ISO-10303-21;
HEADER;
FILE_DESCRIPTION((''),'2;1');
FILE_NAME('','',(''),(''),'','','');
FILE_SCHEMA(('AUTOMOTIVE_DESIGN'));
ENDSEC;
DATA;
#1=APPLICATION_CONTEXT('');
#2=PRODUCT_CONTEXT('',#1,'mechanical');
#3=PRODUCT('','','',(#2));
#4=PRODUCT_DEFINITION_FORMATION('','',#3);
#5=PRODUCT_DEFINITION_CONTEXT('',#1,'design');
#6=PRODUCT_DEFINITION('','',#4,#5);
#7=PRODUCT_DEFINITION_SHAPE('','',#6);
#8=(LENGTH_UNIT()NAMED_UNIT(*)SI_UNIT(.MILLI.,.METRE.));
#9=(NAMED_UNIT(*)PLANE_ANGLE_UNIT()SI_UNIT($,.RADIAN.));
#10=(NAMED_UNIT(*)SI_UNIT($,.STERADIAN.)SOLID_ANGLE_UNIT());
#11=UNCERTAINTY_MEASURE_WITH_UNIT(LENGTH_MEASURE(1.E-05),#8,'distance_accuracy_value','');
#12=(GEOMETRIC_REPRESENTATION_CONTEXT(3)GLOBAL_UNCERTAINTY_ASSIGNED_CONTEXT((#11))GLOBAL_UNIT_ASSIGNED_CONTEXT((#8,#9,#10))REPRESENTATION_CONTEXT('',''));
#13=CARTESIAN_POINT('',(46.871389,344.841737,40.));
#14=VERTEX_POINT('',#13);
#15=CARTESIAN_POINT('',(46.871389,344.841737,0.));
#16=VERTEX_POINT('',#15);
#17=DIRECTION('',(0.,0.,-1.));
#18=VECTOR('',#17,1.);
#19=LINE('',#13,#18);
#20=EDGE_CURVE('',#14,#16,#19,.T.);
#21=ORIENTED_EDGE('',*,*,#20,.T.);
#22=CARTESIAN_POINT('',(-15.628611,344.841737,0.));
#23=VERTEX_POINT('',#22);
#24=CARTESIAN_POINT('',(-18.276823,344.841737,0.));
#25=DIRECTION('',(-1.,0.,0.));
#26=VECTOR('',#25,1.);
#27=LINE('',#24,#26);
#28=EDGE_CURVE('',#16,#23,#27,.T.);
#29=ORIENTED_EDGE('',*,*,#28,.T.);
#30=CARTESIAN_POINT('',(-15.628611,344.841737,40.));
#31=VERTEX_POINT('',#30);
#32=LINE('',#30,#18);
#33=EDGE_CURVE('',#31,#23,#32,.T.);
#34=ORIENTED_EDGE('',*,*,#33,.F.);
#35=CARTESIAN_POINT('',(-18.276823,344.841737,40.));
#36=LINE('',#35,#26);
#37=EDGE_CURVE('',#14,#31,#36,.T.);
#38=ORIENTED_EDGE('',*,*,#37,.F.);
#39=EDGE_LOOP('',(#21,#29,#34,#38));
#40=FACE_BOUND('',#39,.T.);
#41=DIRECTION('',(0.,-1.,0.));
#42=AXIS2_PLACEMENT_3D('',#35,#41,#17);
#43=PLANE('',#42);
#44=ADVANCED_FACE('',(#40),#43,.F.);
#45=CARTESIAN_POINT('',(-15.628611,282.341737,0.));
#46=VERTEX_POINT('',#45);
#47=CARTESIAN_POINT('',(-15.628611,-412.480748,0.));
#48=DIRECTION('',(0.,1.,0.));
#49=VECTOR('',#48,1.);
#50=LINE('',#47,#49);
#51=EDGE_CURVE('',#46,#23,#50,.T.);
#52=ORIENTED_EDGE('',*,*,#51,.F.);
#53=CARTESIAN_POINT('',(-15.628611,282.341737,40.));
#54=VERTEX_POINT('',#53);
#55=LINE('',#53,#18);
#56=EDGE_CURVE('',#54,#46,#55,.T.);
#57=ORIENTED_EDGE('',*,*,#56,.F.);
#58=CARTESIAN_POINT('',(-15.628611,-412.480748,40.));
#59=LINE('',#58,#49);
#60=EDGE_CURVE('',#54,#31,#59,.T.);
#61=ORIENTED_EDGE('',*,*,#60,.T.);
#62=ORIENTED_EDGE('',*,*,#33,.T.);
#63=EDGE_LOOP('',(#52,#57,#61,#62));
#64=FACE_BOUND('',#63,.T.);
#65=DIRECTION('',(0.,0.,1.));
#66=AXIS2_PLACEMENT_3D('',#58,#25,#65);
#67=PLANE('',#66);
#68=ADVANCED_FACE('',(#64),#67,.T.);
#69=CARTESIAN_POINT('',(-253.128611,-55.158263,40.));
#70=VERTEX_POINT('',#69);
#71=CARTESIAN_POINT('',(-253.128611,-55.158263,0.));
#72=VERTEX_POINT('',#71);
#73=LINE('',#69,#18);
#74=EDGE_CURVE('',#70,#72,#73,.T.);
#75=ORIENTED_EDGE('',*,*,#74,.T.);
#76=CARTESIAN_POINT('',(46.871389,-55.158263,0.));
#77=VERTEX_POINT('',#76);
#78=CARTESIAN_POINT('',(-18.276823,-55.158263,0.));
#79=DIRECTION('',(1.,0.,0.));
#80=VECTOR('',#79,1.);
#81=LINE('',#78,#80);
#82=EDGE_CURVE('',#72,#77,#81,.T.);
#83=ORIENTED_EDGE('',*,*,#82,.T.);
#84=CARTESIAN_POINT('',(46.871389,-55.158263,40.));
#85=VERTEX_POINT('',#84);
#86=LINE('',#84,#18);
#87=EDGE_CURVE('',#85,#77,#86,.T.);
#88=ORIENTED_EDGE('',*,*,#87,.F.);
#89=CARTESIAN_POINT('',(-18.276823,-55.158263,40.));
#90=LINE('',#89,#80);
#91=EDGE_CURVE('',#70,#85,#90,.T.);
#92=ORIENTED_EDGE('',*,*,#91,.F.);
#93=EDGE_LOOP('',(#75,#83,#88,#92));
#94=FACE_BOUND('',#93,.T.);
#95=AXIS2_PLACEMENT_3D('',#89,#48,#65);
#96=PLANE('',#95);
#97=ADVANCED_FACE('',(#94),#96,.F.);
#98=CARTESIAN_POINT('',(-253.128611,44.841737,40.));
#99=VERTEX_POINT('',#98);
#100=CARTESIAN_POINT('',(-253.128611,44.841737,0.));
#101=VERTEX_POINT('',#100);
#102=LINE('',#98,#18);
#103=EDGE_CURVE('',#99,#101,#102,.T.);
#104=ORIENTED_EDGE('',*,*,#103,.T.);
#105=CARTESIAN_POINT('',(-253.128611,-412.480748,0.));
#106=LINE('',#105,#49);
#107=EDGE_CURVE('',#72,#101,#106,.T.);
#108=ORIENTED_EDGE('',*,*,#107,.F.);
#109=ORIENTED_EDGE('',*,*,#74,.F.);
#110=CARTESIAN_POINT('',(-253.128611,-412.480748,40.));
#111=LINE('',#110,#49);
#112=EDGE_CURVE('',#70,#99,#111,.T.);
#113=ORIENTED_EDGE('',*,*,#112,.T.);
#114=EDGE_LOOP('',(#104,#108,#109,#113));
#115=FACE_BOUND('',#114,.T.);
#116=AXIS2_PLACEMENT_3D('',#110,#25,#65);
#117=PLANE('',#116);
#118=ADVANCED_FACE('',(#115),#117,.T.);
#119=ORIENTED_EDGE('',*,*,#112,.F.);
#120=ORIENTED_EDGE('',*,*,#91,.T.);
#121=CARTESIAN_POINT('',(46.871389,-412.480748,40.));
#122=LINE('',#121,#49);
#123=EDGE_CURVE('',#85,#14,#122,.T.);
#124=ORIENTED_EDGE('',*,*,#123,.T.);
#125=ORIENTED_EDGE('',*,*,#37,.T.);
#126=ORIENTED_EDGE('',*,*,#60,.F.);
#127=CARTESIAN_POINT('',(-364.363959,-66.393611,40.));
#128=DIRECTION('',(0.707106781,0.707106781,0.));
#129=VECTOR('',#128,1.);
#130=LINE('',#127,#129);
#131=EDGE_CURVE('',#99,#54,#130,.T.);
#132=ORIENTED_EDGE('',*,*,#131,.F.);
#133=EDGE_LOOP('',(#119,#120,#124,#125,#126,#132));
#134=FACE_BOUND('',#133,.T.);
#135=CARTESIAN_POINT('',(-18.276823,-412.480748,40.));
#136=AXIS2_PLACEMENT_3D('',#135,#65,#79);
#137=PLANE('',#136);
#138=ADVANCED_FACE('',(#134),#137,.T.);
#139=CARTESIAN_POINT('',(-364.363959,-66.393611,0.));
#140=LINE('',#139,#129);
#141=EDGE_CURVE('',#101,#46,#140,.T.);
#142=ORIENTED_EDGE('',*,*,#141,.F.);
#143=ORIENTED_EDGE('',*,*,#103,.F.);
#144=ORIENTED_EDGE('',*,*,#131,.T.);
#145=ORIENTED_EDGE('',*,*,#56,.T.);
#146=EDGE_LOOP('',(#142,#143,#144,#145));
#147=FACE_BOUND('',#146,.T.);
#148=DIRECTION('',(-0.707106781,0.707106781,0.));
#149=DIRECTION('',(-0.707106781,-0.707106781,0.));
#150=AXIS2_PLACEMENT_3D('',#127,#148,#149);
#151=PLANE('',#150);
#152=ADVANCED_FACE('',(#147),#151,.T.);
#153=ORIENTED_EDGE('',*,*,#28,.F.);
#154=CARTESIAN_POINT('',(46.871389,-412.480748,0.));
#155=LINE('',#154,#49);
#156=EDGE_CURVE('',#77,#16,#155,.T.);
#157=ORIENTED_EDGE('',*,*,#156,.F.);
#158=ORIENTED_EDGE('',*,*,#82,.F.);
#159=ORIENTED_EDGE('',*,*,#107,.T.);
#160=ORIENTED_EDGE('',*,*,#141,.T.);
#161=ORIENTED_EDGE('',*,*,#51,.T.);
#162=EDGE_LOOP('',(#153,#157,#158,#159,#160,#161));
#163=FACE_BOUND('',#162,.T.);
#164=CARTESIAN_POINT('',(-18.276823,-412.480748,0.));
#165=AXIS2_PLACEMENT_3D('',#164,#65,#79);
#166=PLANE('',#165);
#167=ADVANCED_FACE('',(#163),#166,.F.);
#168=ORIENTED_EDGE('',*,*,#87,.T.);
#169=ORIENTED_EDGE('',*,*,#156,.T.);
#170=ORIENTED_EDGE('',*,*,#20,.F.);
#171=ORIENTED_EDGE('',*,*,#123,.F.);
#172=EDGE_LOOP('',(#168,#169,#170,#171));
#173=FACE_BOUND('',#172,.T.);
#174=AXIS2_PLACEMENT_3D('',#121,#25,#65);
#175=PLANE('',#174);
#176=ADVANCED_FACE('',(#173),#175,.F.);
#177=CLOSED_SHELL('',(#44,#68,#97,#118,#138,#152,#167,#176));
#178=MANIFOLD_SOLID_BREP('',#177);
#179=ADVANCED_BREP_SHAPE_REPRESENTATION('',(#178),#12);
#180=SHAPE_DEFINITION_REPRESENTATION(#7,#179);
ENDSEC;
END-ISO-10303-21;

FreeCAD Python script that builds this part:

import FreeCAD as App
import Part
import Sketcher


def add_polygon(sketch, points):
    """Adds a closed chain of lines whose ends are joined by coincident constraints."""
    first, n = sketch.GeometryCount, len(points)
    for a, b in zip(points, points[1:] + points[:1]):
        sketch.addGeometry(Part.LineSegment(App.Vector(*a, 0), App.Vector(*b, 0)), False)
    for i in range(n):
        sketch.addConstraint(Sketcher.Constraint("Coincident", first + i, 2, first + (i + 1) % n, 1))

doc = App.newDocument("Part")
body = doc.addObject("PartDesign::Body", "Body")

sketch1 = body.newObject("Sketcher::SketchObject", "Sketch")
sketch1.AttachmentSupport = (doc.getObject("XY_Plane"), [""])
sketch1.MapMode = "FlatFace"
add_polygon(sketch1, [(-15.628611, 344.841737), (-15.628611, 282.341737), (-253.128611, 44.841737), (-253.128611, -55.158263), (46.871389, -55.158263), (46.871389, 344.841737)])
sketch1.addConstraint([
    Sketcher.Constraint("Vertical", 0),
    Sketcher.Constraint("Vertical", 2),
    Sketcher.Constraint("Horizontal", 3),
    Sketcher.Constraint("Vertical", 4),
    Sketcher.Constraint("Horizontal", 5),
    Sketcher.Constraint("Equal", 5, 0),
    Sketcher.Constraint("DistanceX", 3, 1, 3, 2, 300.0),
    Sketcher.Constraint("DistanceY", 2, 2, 2, 1, 100.0),
    Sketcher.Constraint("DistanceY", 4, 1, 4, 2, 400.0),
    Sketcher.Constraint("DistanceX", 5, 2, 5, 1, 62.5),
    Sketcher.Constraint("DistanceX", 0, 2, -1, 1, 15.628611),
    Sketcher.Constraint("DistanceY", -1, 1, 0, 2, 282.341737),
])
pad1 = body.newObject("PartDesign::Pad", "Pad")
pad1.Profile = sketch1
pad1.Length = 40

doc.recompute()
